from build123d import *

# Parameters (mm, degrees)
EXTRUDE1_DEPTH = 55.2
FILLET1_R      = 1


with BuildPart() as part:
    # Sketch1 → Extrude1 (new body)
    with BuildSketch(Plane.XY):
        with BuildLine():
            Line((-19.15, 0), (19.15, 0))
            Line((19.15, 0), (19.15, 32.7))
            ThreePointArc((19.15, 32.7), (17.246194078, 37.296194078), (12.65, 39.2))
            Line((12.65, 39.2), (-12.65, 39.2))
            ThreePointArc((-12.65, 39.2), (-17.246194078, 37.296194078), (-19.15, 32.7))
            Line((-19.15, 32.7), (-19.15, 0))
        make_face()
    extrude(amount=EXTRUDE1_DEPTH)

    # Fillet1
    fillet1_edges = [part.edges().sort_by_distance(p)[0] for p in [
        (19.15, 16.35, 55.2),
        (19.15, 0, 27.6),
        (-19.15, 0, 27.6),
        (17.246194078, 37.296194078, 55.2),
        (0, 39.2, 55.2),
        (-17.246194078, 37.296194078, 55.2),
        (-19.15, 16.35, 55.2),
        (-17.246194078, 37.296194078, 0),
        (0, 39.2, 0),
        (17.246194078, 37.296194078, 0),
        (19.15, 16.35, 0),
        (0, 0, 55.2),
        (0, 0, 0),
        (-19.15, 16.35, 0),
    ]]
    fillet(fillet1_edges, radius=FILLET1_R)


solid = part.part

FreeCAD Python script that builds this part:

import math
import FreeCAD as App
import Part
import Sketcher
Q = App.Units.Quantity

doc = App.newDocument("Part")
body = doc.addObject("PartDesign::Body", "Body")

# Sketch on XY plane
sketch1 = doc.addObject("Sketcher::SketchObject", "Sketch")
body.addObject(sketch1)
sketch1.AttachmentSupport = (doc.XY_Plane, [""])
sketch1.MapMode = "FlatFace"
sketch1.addGeometry([
    Part.LineSegment(App.Vector(-19, 0, 0), App.Vector(19, 0, 0)),  # 0
    Part.LineSegment(App.Vector(19, 0, 0), App.Vector(19, 33, 0)),  # 1
    Part.ArcOfCircle(Part.Circle(App.Vector(13, 33, 0), App.Vector(0, 0, 1), 6), math.radians(0), math.radians(90)),  # 2
    Part.LineSegment(App.Vector(13, 39, 0), App.Vector(-13, 39, 0)),  # 3
    Part.ArcOfCircle(Part.Circle(App.Vector(-13, 33, 0), App.Vector(0, 0, 1), 6), math.radians(90), math.radians(180)),  # 4
    Part.LineSegment(App.Vector(-19, 33, 0), App.Vector(-19, 0, 0)),  # 5
], False)
sketch1.addConstraint([
    Sketcher.Constraint("Coincident", 0, 2, 1, 1),
    Sketcher.Constraint("Tangent", 1, 2, 2, 1),
    Sketcher.Constraint("Tangent", 2, 2, 3, 1),
    Sketcher.Constraint("Tangent", 3, 2, 4, 1),
    Sketcher.Constraint("Tangent", 4, 2, 5, 1),
    Sketcher.Constraint("Coincident", 5, 2, 0, 1),
    Sketcher.Constraint("Horizontal", 0),
    Sketcher.Constraint("Vertical", 1),
    Sketcher.Constraint("Horizontal", 3),
    Sketcher.Constraint("Vertical", 5),
    Sketcher.Constraint("Equal", 2, 4),
    Sketcher.Constraint("Symmetric", 0, 2, 5, 2, -1, 1),
    Sketcher.Constraint("Radius", 2, Q("6.5 mm")),
    Sketcher.Constraint("DistanceX", 0, 1, 0, 2, Q("38.3 mm")),
    Sketcher.Constraint("DistanceY", 1, 1, 1, 2, Q("32.7 mm")),
])
pad1 = doc.addObject("PartDesign::Pad", "Pad")
body.addObject(pad1)
pad1.Profile = sketch1
pad1.Length = 55.2
doc.recompute()

fillet = doc.addObject("PartDesign::Fillet", "Fillet")
body.addObject(fillet)
fillet.Base = (pad1, ["Edge1"])
fillet.UseAllEdges = True
fillet.Radius = 1

doc.recompute()
